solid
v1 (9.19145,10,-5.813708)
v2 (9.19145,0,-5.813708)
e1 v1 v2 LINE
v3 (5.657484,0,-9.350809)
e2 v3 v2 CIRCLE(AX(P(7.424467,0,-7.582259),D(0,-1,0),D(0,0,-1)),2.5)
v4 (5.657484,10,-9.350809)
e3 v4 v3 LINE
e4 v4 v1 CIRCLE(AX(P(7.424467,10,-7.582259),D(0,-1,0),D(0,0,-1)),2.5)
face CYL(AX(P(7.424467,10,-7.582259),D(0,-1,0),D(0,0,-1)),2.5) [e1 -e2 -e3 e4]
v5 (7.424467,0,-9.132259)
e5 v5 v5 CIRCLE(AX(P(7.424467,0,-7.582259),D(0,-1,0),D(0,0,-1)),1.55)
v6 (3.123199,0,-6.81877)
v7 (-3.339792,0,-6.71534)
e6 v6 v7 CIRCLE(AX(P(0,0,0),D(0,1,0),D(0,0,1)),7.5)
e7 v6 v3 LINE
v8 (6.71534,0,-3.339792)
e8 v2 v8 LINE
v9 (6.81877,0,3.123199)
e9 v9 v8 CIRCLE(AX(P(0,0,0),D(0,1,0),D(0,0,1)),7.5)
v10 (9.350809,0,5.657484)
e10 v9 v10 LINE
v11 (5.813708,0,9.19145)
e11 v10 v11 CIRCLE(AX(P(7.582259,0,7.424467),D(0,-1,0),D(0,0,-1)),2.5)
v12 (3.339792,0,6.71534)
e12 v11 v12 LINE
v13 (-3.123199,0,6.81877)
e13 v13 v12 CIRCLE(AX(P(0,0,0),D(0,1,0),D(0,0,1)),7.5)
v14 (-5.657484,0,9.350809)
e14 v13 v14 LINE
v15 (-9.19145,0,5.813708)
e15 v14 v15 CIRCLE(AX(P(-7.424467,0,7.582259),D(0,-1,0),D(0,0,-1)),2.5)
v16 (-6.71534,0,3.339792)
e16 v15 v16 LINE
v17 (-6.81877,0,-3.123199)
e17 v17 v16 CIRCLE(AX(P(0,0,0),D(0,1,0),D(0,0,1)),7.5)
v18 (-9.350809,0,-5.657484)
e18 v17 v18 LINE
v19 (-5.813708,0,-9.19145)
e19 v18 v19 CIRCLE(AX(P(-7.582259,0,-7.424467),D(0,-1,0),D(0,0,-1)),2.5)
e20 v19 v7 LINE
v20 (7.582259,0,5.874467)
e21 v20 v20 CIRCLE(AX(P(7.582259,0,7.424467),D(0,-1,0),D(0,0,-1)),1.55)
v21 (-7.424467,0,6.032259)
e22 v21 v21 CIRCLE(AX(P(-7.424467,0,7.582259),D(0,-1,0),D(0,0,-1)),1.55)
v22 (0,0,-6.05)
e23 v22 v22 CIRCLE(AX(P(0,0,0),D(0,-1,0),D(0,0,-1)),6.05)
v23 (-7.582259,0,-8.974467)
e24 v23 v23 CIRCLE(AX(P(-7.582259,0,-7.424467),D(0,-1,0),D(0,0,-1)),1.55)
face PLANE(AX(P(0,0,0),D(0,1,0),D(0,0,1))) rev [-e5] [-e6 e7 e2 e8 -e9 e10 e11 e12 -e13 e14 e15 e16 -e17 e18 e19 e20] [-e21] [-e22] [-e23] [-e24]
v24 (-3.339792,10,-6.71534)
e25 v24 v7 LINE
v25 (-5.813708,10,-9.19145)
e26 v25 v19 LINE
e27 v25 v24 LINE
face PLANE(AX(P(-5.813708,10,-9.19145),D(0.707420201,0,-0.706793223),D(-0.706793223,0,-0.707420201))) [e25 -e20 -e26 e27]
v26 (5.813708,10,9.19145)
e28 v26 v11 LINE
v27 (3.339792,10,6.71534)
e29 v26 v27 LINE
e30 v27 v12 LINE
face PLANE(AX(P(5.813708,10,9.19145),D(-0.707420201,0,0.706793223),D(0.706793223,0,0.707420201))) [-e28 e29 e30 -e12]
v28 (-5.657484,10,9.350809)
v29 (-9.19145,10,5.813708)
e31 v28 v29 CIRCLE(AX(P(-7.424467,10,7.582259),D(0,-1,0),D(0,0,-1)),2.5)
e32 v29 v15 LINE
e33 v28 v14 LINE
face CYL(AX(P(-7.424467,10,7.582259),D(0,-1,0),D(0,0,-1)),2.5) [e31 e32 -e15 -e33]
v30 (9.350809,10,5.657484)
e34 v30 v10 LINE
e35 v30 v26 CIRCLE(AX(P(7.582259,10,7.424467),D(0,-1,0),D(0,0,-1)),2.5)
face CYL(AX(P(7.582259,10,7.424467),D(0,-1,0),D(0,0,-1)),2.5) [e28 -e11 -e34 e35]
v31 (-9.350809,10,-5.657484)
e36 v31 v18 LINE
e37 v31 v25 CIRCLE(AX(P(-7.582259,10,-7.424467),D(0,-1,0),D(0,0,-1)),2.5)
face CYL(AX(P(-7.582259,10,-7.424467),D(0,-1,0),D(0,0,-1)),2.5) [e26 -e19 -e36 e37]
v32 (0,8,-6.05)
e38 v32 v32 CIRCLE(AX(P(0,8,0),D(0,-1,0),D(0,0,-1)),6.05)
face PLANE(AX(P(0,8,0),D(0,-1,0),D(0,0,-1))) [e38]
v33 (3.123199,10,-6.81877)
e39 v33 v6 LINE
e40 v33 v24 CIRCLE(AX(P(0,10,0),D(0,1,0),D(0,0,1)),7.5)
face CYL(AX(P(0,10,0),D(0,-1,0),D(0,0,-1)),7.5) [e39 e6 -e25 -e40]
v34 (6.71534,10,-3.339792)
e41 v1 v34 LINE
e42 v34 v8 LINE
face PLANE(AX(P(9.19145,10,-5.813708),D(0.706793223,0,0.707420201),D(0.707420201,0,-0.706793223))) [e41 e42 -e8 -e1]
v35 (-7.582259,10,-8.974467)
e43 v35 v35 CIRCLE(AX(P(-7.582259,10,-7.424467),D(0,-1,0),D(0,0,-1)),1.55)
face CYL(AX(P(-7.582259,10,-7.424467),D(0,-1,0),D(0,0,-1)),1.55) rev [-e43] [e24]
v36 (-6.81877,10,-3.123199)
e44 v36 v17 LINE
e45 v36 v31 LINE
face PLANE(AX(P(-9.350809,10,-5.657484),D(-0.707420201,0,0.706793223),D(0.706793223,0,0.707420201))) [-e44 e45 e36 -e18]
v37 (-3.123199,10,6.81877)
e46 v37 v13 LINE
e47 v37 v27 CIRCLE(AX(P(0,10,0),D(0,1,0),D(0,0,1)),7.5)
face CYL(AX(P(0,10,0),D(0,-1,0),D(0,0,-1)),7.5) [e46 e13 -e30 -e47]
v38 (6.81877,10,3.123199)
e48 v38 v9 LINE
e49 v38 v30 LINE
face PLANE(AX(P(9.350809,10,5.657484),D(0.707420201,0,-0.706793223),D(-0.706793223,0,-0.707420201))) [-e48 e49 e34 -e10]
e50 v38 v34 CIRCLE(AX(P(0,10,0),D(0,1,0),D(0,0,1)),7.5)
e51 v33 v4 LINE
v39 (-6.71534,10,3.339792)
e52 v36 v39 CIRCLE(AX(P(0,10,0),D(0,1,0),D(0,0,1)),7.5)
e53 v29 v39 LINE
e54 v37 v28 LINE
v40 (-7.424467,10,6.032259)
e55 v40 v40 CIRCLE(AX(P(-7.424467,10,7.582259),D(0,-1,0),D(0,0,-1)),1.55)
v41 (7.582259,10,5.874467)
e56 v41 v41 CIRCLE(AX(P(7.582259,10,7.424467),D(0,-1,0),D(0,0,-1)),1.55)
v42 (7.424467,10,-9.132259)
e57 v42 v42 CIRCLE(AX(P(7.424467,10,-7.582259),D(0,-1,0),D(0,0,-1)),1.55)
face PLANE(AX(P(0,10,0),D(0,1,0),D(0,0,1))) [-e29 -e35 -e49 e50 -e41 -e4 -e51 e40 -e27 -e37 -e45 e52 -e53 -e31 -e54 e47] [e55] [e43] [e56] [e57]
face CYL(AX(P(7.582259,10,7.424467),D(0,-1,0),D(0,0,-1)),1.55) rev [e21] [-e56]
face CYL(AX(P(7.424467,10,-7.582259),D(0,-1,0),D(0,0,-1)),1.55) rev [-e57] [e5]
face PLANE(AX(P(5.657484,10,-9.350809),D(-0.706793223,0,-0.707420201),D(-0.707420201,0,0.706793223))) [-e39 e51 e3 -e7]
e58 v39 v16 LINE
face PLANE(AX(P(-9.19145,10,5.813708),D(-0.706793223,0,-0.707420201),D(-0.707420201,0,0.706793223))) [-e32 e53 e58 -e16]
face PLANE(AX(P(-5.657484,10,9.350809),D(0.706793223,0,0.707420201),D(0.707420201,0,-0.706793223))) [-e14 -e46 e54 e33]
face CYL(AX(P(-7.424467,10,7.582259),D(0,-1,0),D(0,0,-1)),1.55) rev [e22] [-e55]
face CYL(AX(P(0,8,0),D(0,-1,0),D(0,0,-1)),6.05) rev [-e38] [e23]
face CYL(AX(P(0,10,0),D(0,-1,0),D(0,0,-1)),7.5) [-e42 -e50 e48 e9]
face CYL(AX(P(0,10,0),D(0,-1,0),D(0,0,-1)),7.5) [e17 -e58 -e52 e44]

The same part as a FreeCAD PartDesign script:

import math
import FreeCAD as App
import Part
import Sketcher

V = App.Vector
Q = App.Units.Quantity

doc = App.newDocument("Part")
body = doc.addObject("PartDesign::Body", "Body")

# Sketch on XZ plane
sketch1 = body.newObject("Sketcher::SketchObject", "Sketch")
sketch1.AttachmentSupport = (doc.getObject("XZ_Plane"), [""])
sketch1.MapMode = "FlatFace"
sketch1.addGeometry(Part.Circle(V(0, 0, 0), V(0, 0, 1), 8), False)
sketch1.addConstraint(Sketcher.Constraint("Coincident", 0, 3, -1, 1))
sketch1.addConstraint(Sketcher.Constraint("Diameter", 0, Q("15 mm")))
pad1 = body.newObject("PartDesign::Pad", "Pad")
pad1.Profile = sketch1
pad1.Length = 10
pad1.Reversed = True

# Sketch on XZ plane
sketch2 = body.newObject("Sketcher::SketchObject", "Sketch001")
sketch2.AttachmentSupport = (doc.getObject("XZ_Plane"), [""])
sketch2.MapMode = "FlatFace"
sketch2.addGeometry(Part.LineSegment(V(-3.1, 6.8, 0), V(-5.7, 9.4, 0)), False)
sketch2.addGeometry(Part.ArcOfCircle(Part.Circle(V(-7.4, 7.6, 0), V(0, 0, 1), 2.5), math.radians(45), math.radians(225)), False)
sketch2.addGeometry(Part.LineSegment(V(-9.2, 5.8, 0), V(-6.7, 3.3, 0)), False)
sketch2.addGeometry(Part.ArcOfCircle(Part.Circle(V(0, 0, 0), V(0, 0, 1), 7.5), math.radians(115), math.radians(154)), False)
sketch2.addGeometry(Part.Circle(V(-7.4, 7.6, 0), V(0, 0, 1), 1.6), False)
sketch2.addGeometry(Part.LineSegment(V(5.8, 9.2, 0), V(3.3, 6.7, 0)), False)
sketch2.addGeometry(Part.ArcOfCircle(Part.Circle(V(0, 0, 0), V(0, 0, 1), 7.5), math.radians(25), math.radians(64)), False)
sketch2.addGeometry(Part.LineSegment(V(6.8, 3.1, 0), V(9.4, 5.7, 0)), False)
sketch2.addGeometry(Part.ArcOfCircle(Part.Circle(V(7.6, 7.4, 0), V(0, 0, 1), 2.5), math.radians(-45), math.radians(135)), False)
sketch2.addGeometry(Part.Circle(V(7.6, 7.4, 0), V(0, 0, 1), 1.6), False)
sketch2.addGeometry(Part.LineSegment(V(9.2, -5.8, 0), V(6.7, -3.3, 0)), False)
sketch2.addGeometry(Part.ArcOfCircle(Part.Circle(V(0, 0, 0), V(0, 0, 1), 7.5), math.radians(-65), math.radians(-26)), False)
sketch2.addGeometry(Part.LineSegment(V(3.1, -6.8, 0), V(5.7, -9.4, 0)), False)
sketch2.addGeometry(Part.ArcOfCircle(Part.Circle(V(7.4, -7.6, 0), V(0, 0, 1), 2.5), math.radians(-135), math.radians(45)), False)
sketch2.addGeometry(Part.Circle(V(7.4, -7.6, 0), V(0, 0, 1), 1.6), False)
sketch2.addGeometry(Part.LineSegment(V(-5.8, -9.2, 0), V(-3.3, -6.7, 0)), False)
sketch2.addGeometry(Part.ArcOfCircle(Part.Circle(V(0, 0, 0), V(0, 0, 1), 7.5), math.radians(-155), math.radians(-116)), False)
sketch2.addGeometry(Part.LineSegment(V(-6.8, -3.1, 0), V(-9.4, -5.7, 0)), False)
sketch2.addGeometry(Part.ArcOfCircle(Part.Circle(V(-7.6, -7.4, 0), V(0, 0, 1), 2.5), math.radians(135), math.radians(315)), False)
sketch2.addGeometry(Part.Circle(V(-7.6, -7.4, 0), V(0, 0, 1), 1.6), False)
sketch2.addConstraint(Sketcher.Constraint("Tangent", 0, 2, 1, 1))
sketch2.addConstraint(Sketcher.Constraint("Tangent", 1, 2, 2, 1))
sketch2.addConstraint(Sketcher.Constraint("Coincident", 2, 2, 3, 2))
sketch2.addConstraint(Sketcher.Constraint("Coincident", 3, 1, 0, 1))
sketch2.addConstraint(Sketcher.Constraint("Coincident", 5, 2, 6, 2))
sketch2.addConstraint(Sketcher.Constraint("Coincident", 6, 1, 7, 1))
sketch2.addConstraint(Sketcher.Constraint("Tangent", 7, 2, 8, 1))
sketch2.addConstraint(Sketcher.Constraint("Tangent", 8, 2, 5, 1))
sketch2.addConstraint(Sketcher.Constraint("Coincident", 10, 2, 11, 2))
sketch2.addConstraint(Sketcher.Constraint("Coincident", 11, 1, 12, 1))
sketch2.addConstraint(Sketcher.Constraint("Tangent", 12, 2, 13, 1))
sketch2.addConstraint(Sketcher.Constraint("Tangent", 13, 2, 10, 1))
sketch2.addConstraint(Sketcher.Constraint("Coincident", 15, 2, 16, 2))
sketch2.addConstraint(Sketcher.Constraint("Coincident", 16, 1, 17, 1))
sketch2.addConstraint(Sketcher.Constraint("Tangent", 17, 2, 18, 1))
sketch2.addConstraint(Sketcher.Constraint("Tangent", 18, 2, 15, 1))
sketch2.addConstraint(Sketcher.Constraint("Coincident", 3, 3, -1, 1))
sketch2.addConstraint(Sketcher.Constraint("Coincident", 6, 3, -1, 1))
sketch2.addConstraint(Sketcher.Constraint("Coincident", 11, 3, -1, 1))
sketch2.addConstraint(Sketcher.Constraint("Coincident", 16, 3, -1, 1))
sketch2.addConstraint(Sketcher.Constraint("Coincident", 4, 3, 1, 3))
sketch2.addConstraint(Sketcher.Constraint("Coincident", 9, 3, 8, 3))
sketch2.addConstraint(Sketcher.Constraint("Coincident", 14, 3, 13, 3))
sketch2.addConstraint(Sketcher.Constraint("Coincident", 19, 3, 18, 3))
sketch2.addConstraint(Sketcher.Constraint("Equal", 3, 6))
sketch2.addConstraint(Sketcher.Constraint("Equal", 1, 8))
sketch2.addConstraint(Sketcher.Constraint("Equal", 4, 9))
sketch2.addConstraint(Sketcher.Constraint("Equal", 6, 11))
sketch2.addConstraint(Sketcher.Constraint("Equal", 8, 13))
sketch2.addConstraint(Sketcher.Constraint("Equal", 9, 14))
sketch2.addConstraint(Sketcher.Constraint("Equal", 11, 16))
sketch2.addConstraint(Sketcher.Constraint("Equal", 13, 18))
sketch2.addConstraint(Sketcher.Constraint("Equal", 14, 19))
sketch2.addConstraint(Sketcher.Constraint("Symmetric", 1, 3, 13, 3, -1, 1))
sketch2.addConstraint(Sketcher.Constraint("Symmetric", 8, 3, 18, 3, -1, 1))
sketch2.addConstraint(Sketcher.Constraint("Parallel", 0, 2))
sketch2.addConstraint(Sketcher.Constraint("Perpendicular", 2, 5))
sketch2.addConstraint(Sketcher.Constraint("Parallel", 5, 7))
sketch2.addConstraint(Sketcher.Constraint("Perpendicular", 7, 10))
sketch2.addConstraint(Sketcher.Constraint("Parallel", 10, 12))
sketch2.addConstraint(Sketcher.Constraint("Perpendicular", 12, 15))
sketch2.addConstraint(Sketcher.Constraint("Parallel", 15, 17))
sketch2.addConstraint(Sketcher.Constraint("Equal", 2, 5))
sketch2.addConstraint(Sketcher.Constraint("Equal", 0, 7))
sketch2.addConstraint(Sketcher.Constraint("Diameter", 4, Q("3.1 mm")))
sketch2.addConstraint(Sketcher.Constraint("Radius", 1, Q("2.5 mm")))
sketch2.addConstraint(Sketcher.Constraint("Radius", 3, Q("7.5 mm")))
sketch2.addConstraint(Sketcher.Constraint("DistanceX", 3, 1, -1, 1, Q("3.123199 mm")))
sketch2.addConstraint(Sketcher.Constraint("DistanceY", 1, 2, 0, 2, Q("3.537101 mm")))
sketch2.addConstraint(Sketcher.Constraint("DistanceY", -1, 1, 1, 3, Q("7.582259 mm")))
pad2 = body.newObject("PartDesign::Pad", "Pad001")
pad2.Profile = sketch2
pad2.Length = 10
pad2.Reversed = True

# Sketch on XZ plane
sketch3 = body.newObject("Sketcher::SketchObject", "Sketch002")
sketch3.AttachmentSupport = (doc.getObject("XZ_Plane"), [""])
sketch3.MapMode = "FlatFace"
sketch3.addGeometry(Part.Circle(V(0, 0, 0), V(0, 0, 1), 6), False)
sketch3.addConstraint(Sketcher.Constraint("Coincident", 0, 3, -1, 1))
sketch3.addConstraint(Sketcher.Constraint("Diameter", 0, Q("12.1 mm")))
pocket1 = body.newObject("PartDesign::Pocket", "Pocket")
pocket1.Profile = sketch3
pocket1.Length = 8

doc.recompute()
